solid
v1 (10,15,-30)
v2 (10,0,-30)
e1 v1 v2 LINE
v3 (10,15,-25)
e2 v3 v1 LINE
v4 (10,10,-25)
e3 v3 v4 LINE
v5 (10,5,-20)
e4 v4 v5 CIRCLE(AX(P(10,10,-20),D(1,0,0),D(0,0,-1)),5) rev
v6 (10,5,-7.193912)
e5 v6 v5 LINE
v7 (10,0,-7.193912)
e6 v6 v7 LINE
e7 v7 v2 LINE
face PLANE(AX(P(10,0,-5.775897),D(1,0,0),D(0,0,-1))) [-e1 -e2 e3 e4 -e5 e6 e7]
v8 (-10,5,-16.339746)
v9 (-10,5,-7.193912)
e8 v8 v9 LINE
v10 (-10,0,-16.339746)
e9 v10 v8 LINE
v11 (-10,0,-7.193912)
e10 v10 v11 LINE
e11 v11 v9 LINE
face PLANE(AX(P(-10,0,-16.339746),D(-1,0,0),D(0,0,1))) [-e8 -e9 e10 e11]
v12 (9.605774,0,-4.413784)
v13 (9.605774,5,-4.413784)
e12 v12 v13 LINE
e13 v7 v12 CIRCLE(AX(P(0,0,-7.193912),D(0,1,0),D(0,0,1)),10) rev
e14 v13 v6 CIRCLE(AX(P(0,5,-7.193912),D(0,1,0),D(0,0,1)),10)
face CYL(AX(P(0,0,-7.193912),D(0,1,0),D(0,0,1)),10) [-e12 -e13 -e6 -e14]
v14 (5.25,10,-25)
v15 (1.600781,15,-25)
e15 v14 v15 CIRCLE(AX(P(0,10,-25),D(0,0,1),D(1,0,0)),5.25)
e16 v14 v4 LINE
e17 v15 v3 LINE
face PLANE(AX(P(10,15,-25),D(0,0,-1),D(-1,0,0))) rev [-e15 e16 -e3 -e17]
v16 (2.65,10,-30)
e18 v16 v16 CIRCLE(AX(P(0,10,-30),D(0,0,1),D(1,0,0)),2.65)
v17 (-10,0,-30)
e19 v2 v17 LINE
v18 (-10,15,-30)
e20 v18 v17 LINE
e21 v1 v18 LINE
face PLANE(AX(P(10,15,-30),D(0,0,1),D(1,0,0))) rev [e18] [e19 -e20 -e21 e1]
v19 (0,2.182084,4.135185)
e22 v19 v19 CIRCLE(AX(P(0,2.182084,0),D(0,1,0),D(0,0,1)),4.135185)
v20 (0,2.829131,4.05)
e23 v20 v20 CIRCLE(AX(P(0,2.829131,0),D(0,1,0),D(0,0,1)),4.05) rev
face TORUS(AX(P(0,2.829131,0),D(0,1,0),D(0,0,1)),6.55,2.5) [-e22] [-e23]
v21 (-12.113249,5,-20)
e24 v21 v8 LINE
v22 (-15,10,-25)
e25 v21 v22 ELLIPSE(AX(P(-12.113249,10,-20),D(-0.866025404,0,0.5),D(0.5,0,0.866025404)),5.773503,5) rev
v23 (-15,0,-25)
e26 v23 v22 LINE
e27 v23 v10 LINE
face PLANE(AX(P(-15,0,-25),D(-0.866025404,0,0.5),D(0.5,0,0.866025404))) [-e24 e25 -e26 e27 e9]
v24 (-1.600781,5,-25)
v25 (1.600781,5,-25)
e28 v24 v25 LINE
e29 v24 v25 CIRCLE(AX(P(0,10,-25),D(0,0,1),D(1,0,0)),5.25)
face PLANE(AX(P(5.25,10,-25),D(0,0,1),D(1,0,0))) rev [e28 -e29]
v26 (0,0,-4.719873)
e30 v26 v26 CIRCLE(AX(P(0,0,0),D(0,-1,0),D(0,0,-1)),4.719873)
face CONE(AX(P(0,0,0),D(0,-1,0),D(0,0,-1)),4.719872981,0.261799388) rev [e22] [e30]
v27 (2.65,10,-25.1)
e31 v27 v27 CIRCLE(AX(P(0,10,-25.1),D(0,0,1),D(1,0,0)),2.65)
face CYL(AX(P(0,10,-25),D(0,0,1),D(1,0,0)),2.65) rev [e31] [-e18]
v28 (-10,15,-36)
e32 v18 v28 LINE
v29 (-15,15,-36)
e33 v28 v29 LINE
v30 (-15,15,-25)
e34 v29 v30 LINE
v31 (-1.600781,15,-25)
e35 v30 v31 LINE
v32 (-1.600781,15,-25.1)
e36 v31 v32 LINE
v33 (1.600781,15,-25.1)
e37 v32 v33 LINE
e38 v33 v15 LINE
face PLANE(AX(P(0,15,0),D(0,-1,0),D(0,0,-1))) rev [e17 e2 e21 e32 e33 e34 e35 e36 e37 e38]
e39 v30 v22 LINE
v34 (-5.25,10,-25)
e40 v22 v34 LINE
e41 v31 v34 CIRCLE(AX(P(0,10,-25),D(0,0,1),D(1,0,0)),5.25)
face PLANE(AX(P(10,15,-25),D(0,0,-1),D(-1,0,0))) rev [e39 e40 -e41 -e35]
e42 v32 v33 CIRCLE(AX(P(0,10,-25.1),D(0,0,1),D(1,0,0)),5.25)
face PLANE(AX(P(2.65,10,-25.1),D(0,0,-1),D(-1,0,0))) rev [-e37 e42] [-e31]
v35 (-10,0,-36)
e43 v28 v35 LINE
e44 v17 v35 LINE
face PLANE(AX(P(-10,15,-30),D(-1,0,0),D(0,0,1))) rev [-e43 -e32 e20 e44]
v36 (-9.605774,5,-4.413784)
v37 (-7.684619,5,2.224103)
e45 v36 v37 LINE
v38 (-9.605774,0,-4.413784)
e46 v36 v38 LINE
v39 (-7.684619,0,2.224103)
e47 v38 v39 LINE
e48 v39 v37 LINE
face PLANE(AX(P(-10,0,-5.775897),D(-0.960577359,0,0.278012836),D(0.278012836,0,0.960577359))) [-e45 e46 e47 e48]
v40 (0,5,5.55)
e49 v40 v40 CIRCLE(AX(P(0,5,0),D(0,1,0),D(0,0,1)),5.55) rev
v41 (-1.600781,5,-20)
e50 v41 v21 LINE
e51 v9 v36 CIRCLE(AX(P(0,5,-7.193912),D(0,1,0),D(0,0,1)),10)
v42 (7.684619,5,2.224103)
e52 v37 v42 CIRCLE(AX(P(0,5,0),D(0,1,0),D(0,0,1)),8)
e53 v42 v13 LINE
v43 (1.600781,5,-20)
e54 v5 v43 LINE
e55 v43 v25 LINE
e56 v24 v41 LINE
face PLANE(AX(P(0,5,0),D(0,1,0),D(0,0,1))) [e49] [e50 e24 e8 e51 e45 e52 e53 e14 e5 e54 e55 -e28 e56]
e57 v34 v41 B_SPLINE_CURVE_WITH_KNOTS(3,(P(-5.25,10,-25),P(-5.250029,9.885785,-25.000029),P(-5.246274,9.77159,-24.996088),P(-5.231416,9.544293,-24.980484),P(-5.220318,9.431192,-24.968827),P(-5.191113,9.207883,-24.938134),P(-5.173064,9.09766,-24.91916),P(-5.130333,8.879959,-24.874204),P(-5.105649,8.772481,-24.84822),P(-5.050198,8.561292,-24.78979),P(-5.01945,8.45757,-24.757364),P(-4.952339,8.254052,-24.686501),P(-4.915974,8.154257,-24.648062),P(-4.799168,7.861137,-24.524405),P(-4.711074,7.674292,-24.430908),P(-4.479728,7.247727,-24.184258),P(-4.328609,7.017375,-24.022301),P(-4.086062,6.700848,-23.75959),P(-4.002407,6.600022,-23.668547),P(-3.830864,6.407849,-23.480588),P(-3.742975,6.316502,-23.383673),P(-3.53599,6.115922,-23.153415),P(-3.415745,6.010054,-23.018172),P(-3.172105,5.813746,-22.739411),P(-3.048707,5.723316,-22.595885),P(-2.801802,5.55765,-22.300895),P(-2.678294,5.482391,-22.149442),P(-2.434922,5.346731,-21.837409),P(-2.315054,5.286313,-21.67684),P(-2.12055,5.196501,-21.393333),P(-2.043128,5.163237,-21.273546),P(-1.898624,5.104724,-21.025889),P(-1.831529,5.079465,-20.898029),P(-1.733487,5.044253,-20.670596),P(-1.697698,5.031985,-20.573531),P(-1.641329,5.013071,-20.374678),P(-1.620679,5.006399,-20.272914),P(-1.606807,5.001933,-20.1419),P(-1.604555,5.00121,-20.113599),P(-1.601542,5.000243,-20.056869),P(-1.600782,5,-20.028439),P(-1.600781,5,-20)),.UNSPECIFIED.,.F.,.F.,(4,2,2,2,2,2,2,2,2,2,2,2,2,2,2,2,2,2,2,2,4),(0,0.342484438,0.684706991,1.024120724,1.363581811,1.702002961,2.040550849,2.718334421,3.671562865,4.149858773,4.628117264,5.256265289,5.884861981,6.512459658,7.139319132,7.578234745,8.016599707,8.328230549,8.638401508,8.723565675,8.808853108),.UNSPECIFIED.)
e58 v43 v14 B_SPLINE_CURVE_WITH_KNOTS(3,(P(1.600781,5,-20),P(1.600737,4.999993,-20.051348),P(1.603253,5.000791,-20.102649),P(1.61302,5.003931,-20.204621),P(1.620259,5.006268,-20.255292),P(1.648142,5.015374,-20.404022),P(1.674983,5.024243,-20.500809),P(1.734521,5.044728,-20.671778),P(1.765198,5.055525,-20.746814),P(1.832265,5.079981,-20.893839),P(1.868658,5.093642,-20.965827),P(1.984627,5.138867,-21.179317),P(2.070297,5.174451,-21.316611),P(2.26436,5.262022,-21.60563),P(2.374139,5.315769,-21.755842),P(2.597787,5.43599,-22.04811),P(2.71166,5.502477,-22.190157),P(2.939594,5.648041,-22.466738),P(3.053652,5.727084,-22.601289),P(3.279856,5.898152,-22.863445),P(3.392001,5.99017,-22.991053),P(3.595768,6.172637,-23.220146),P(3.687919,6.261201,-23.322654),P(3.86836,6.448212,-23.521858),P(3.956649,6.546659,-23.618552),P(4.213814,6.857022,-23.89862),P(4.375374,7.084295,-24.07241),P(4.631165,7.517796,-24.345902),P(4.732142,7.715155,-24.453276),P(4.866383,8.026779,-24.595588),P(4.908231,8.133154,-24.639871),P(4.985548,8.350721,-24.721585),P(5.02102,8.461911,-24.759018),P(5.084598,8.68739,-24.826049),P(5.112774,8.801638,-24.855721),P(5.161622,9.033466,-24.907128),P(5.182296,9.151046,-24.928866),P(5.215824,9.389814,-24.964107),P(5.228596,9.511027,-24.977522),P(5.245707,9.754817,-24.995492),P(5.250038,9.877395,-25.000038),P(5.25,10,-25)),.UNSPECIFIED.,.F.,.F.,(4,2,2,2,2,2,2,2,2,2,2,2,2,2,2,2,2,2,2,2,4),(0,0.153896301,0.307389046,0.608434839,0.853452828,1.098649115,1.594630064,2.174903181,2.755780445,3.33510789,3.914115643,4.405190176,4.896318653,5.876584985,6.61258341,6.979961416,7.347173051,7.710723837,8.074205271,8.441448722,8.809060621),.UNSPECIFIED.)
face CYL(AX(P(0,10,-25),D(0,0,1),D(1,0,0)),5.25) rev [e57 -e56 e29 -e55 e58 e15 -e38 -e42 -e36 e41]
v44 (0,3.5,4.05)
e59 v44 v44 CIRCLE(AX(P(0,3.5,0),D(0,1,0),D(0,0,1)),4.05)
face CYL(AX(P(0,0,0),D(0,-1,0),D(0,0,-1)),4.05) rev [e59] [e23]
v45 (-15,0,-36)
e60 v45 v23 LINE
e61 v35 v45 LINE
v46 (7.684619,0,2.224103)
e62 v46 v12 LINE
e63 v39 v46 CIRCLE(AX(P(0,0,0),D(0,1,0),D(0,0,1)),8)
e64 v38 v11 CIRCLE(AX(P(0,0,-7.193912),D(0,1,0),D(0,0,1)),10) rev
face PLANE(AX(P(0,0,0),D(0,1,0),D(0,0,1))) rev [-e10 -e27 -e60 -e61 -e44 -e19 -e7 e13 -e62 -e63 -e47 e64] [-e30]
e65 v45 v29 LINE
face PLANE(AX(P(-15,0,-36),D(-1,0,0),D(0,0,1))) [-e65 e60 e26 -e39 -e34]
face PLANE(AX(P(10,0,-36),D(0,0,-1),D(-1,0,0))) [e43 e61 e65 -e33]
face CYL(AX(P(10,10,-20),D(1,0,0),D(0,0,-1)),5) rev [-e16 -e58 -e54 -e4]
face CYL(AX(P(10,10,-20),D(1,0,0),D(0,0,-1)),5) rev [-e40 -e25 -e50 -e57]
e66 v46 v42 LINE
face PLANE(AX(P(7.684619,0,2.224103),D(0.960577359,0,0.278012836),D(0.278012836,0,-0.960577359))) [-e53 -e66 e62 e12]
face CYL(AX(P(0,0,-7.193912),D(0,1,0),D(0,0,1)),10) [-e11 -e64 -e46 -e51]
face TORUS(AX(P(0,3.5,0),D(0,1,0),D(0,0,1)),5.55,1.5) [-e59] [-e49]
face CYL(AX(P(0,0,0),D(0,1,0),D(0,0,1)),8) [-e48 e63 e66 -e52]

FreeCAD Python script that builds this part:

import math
import FreeCAD as App
import Part
import Sketcher

V = App.Vector
Q = App.Units.Quantity


def edges_at(feature, points):
    """Names of the edges that pass closest to the given points."""
    edges = feature.Shape.Edges
    near = lambda p: min(range(len(edges)), key=lambda i: edges[i].distToShape(Part.Vertex(*p))[0])
    return sorted({f"Edge{near(p) + 1}" for p in points})

doc = App.newDocument("Part")
body = doc.addObject("PartDesign::Body", "Body")

# Sketch on XZ plane
sketch1 = body.newObject("Sketcher::SketchObject", "Sketch")
sketch1.AttachmentSupport = (doc.getObject("XZ_Plane"), [""])
sketch1.MapMode = "FlatFace"
sketch1.AttachmentOffset = App.Placement(V(0, 0, -5), App.Rotation())
sketch1.addGeometry([
    Part.LineSegment(V(10, -5.775897, 0), V(10, -36, 0)),  # 0
    Part.LineSegment(V(10, -36, 0), V(-15, -36, 0)),  # 1
    Part.LineSegment(V(-15, -36, 0), V(-15, -25, 0)),  # 2
    Part.LineSegment(V(-15, -25, 0), V(-10, -16.339746, 0)),  # 3
    Part.LineSegment(V(-10, -16.339746, 0), V(-10, -5.775897, 0)),  # 4
    Part.LineSegment(V(-10, -5.775897, 0), V(-7.684619, 2.224103, 0)),  # 5
    Part.ArcOfCircle(Part.Circle(V(0, 0, 0), V(0, 0, 1), 8), math.radians(16.14164), math.radians(163.85836)),  # 6
    Part.LineSegment(V(7.684619, 2.224103, 0), V(10, -5.775897, 0)),  # 7
], False)
sketch1.addConstraint([
    Sketcher.Constraint("Coincident", 0, 2, 1, 1),
    Sketcher.Constraint("Coincident", 1, 2, 2, 1),
    Sketcher.Constraint("Coincident", 2, 2, 3, 1),
    Sketcher.Constraint("Coincident", 3, 2, 4, 1),
    Sketcher.Constraint("Coincident", 4, 2, 5, 1),
    Sketcher.Constraint("Tangent", 5, 2, 6, 2),
    Sketcher.Constraint("Tangent", 6, 1, 7, 1),
    Sketcher.Constraint("Coincident", 7, 2, 0, 1),
    Sketcher.Constraint("Vertical", 0),
    Sketcher.Constraint("Horizontal", 1),
    Sketcher.Constraint("Vertical", 2),
    Sketcher.Constraint("Vertical", 4),
    Sketcher.Constraint("Coincident", 6, 3, -1, 1),
    Sketcher.Constraint("Symmetric", 4, 2, 7, 2, -2),
    Sketcher.Constraint("Radius", 6, 8.0),
    Sketcher.Constraint("DistanceX", 1, 2, 1, 1, 25.0),
    Sketcher.Constraint("DistanceY", 2, 1, 2, 2, 11.0),
    Sketcher.Constraint("Angle", 3, Q("60 deg")),
    Sketcher.Constraint("Distance", 3, 10.0),
    Sketcher.Constraint("DistanceY", 0, 2, -1, 1, 36.0),
    Sketcher.Constraint("DistanceY", 4, 2, 5, 2, 8.0),
])
pad1 = body.newObject("PartDesign::Pad", "Pad")
pad1.Profile = sketch1
pad1.Length = 5

# Sketch on XZ plane
sketch2 = body.newObject("Sketcher::SketchObject", "Sketch001")
sketch2.AttachmentSupport = (doc.getObject("XZ_Plane"), [""])
sketch2.MapMode = "FlatFace"
sketch2.AttachmentOffset = App.Placement(V(0, 0, -5), App.Rotation())
sketch2.addGeometry([
    Part.LineSegment(V(10, -25, 0), V(10, -36, 0)),
    Part.LineSegment(V(10, -36, 0), V(-15, -36, 0)),
    Part.LineSegment(V(-15, -36, 0), V(-15, -25, 0)),
    Part.LineSegment(V(-15, -25, 0), V(10, -25, 0)),
], False)
sketch2.addConstraint([
    Sketcher.Constraint("Coincident", 0, 2, 1, 1),
    Sketcher.Constraint("Coincident", 1, 2, 2, 1),
    Sketcher.Constraint("Coincident", 2, 2, 3, 1),
    Sketcher.Constraint("Coincident", 3, 2, 0, 1),
    Sketcher.Constraint("Vertical", 0),
    Sketcher.Constraint("Horizontal", 1),
    Sketcher.Constraint("Vertical", 2),
    Sketcher.Constraint("Horizontal", 3),
    Sketcher.Constraint("DistanceX", 1, 2, 1, 1, 25.0),
    Sketcher.Constraint("DistanceY", 0, 2, 0, 1, 11.0),
    Sketcher.Constraint("DistanceX", -1, 1, 0, 2, 10.0),
    Sketcher.Constraint("DistanceY", 0, 2, -1, 1, 36.0),
])
pad2 = body.newObject("PartDesign::Pad", "Pad001")
pad2.Profile = sketch2
pad2.Length = 10
pad2.Reversed = True

# Sketch on XZ plane
sketch3 = body.newObject("Sketcher::SketchObject", "Sketch002")
sketch3.AttachmentSupport = (doc.getObject("XZ_Plane"), [""])
sketch3.MapMode = "FlatFace"
sketch3.addGeometry([
    Part.LineSegment(V(-10, -30, 0), V(-10, -36, 0)),
    Part.LineSegment(V(-10, -36, 0), V(10, -36, 0)),
    Part.LineSegment(V(10, -36, 0), V(10, -30, 0)),
    Part.LineSegment(V(10, -30, 0), V(-10, -30, 0)),
], False)
sketch3.addConstraint([
    Sketcher.Constraint("Coincident", 0, 2, 1, 1),
    Sketcher.Constraint("Coincident", 1, 2, 2, 1),
    Sketcher.Constraint("Coincident", 2, 2, 3, 1),
    Sketcher.Constraint("Coincident", 3, 2, 0, 1),
    Sketcher.Constraint("Vertical", 0),
    Sketcher.Constraint("Horizontal", 1),
    Sketcher.Constraint("Vertical", 2),
    Sketcher.Constraint("Horizontal", 3),
    Sketcher.Constraint("DistanceX", 1, 1, 1, 2, 20.0),
    Sketcher.Constraint("DistanceY", 0, 2, 0, 1, 6.0),
    Sketcher.Constraint("DistanceX", 0, 2, -1, 1, 10.0),
    Sketcher.Constraint("DistanceY", 0, 2, -1, 1, 36.0),
])
pocket1 = body.newObject("PartDesign::Pocket", "Pocket")
pocket1.Profile = sketch3
pocket1.Type = "ThroughAll"

# Sketch on YZ plane
sketch4 = body.newObject("Sketcher::SketchObject", "Sketch003")
sketch4.AttachmentSupport = (doc.getObject("YZ_Plane"), [""])
sketch4.MapMode = "FlatFace"
sketch4.addGeometry([
    Part.LineSegment(V(15, 0, 0), V(0, 0, 0)),  # 0
    Part.LineSegment(V(0, 0, 0), V(0, -4.719873, 0)),  # 1
    Part.LineSegment(V(0, -4.719873, 0), V(2.5, -4.05, 0)),  # 2
    Part.LineSegment(V(2.5, -4.05, 0), V(15, -4.05, 0)),  # 3
    Part.LineSegment(V(15, -4.05, 0), V(15, 0, 0)),  # 4
], False)
sketch4.addConstraint([
    Sketcher.Constraint("Coincident", 0, 2, 1, 1),
    Sketcher.Constraint("Coincident", 1, 2, 2, 1),
    Sketcher.Constraint("Coincident", 2, 2, 3, 1),
    Sketcher.Constraint("Coincident", 3, 2, 4, 1),
    Sketcher.Constraint("Coincident", 4, 2, 0, 1),
    Sketcher.Constraint("Horizontal", 0),
    Sketcher.Constraint("Vertical", 1),
    Sketcher.Constraint("Horizontal", 3),
    Sketcher.Constraint("Vertical", 4),
    Sketcher.Constraint("Coincident", 0, 2, -1, 1),
    Sketcher.Constraint("DistanceX", 0, 2, 0, 1, 15.0),
    Sketcher.Constraint("Angle", 2, Q("15 deg")),
    Sketcher.Constraint("DistanceX", 3, 1, 3, 2, 12.5),
    Sketcher.Constraint("DistanceY", 4, 1, 4, 2, 4.05),
])
groove = body.newObject("PartDesign::Groove", "Groove")
groove.Profile = sketch4
groove.ReferenceAxis = (sketch4, ["H_Axis"])
groove.Angle = 360

# Sketch on YZ plane
sketch5 = body.newObject("Sketcher::SketchObject", "Sketch004")
sketch5.AttachmentSupport = (doc.getObject("YZ_Plane"), [""])
sketch5.MapMode = "FlatFace"
sketch5.addGeometry([
    Part.LineSegment(V(10, -36, 0), V(10, -25, 0)),  # 0
    Part.LineSegment(V(10, -25, 0), V(4.75, -25, 0)),  # 1
    Part.LineSegment(V(4.75, -25, 0), V(4.75, -25.1, 0)),  # 2
    Part.LineSegment(V(4.75, -25.1, 0), V(7.35, -25.1, 0)),  # 3
    Part.LineSegment(V(7.35, -25.1, 0), V(7.35, -36, 0)),  # 4
    Part.LineSegment(V(7.35, -36, 0), V(10, -36, 0)),  # 5
], False)
sketch5.addGeometry(Part.LineSegment(V(10, -25, 0), V(10, -36, 0)), True)  # axis
sketch5.addConstraint([
    Sketcher.Constraint("Coincident", 0, 2, 1, 1),
    Sketcher.Constraint("Coincident", 1, 2, 2, 1),
    Sketcher.Constraint("Coincident", 2, 2, 3, 1),
    Sketcher.Constraint("Coincident", 3, 2, 4, 1),
    Sketcher.Constraint("Coincident", 4, 2, 5, 1),
    Sketcher.Constraint("Coincident", 5, 2, 0, 1),
    Sketcher.Constraint("Vertical", 0),
    Sketcher.Constraint("Horizontal", 1),
    Sketcher.Constraint("Vertical", 2),
    Sketcher.Constraint("Horizontal", 3),
    Sketcher.Constraint("Vertical", 4),
    Sketcher.Constraint("Horizontal", 5),
    Sketcher.Constraint("Vertical", 6),
    Sketcher.Constraint("Coincident", 6, 1, 0, 2),
    Sketcher.Constraint("Horizontal", 4, 2, 6, 2),
    Sketcher.Constraint("DistanceY", 0, 1, 0, 2, 11.0),
    Sketcher.Constraint("DistanceX", 3, 1, 3, 2, 2.6),
    Sketcher.Constraint("DistanceY", 2, 2, 2, 1, 0.1),
    Sketcher.Constraint("DistanceX", -1, 1, 0, 2, 10.0),
    Sketcher.Constraint("DistanceY", 0, 2, -1, 1, 25.0),
    Sketcher.Constraint("DistanceX", 1, 2, 1, 1, 5.25),
])
groove2 = body.newObject("PartDesign::Groove", "Groove001")
groove2.Profile = sketch5
groove2.ReferenceAxis = (sketch5, ["Axis0"])
groove2.Angle = 360
doc.recompute()

fillet = body.newObject("PartDesign::Fillet", "Fillet")
fillet.Base = (groove2, edges_at(groove2, [(0, 5, 4.05)]))
fillet.Radius = 1.5
doc.recompute()

fillet2 = body.newObject("PartDesign::Fillet", "Fillet001")
fillet2.Base = (fillet, edges_at(fillet, [(0, 2.5, 4.05)]))
fillet2.Radius = 2.5
doc.recompute()

fillet3 = body.newObject("PartDesign::Fillet", "Fillet002")
fillet3.Base = (fillet2, edges_at(fillet2, [(-8.3, 5, -25), (5.8, 5, -25)]))
fillet3.Radius = 5
doc.recompute()

fillet4 = body.newObject("PartDesign::Fillet", "Fillet003")
fillet4.Base = (fillet3, edges_at(fillet3, [(-10, 2.5, -5.776), (10, 2.5, -5.776)]))
fillet4.Radius = 10

doc.recompute()
